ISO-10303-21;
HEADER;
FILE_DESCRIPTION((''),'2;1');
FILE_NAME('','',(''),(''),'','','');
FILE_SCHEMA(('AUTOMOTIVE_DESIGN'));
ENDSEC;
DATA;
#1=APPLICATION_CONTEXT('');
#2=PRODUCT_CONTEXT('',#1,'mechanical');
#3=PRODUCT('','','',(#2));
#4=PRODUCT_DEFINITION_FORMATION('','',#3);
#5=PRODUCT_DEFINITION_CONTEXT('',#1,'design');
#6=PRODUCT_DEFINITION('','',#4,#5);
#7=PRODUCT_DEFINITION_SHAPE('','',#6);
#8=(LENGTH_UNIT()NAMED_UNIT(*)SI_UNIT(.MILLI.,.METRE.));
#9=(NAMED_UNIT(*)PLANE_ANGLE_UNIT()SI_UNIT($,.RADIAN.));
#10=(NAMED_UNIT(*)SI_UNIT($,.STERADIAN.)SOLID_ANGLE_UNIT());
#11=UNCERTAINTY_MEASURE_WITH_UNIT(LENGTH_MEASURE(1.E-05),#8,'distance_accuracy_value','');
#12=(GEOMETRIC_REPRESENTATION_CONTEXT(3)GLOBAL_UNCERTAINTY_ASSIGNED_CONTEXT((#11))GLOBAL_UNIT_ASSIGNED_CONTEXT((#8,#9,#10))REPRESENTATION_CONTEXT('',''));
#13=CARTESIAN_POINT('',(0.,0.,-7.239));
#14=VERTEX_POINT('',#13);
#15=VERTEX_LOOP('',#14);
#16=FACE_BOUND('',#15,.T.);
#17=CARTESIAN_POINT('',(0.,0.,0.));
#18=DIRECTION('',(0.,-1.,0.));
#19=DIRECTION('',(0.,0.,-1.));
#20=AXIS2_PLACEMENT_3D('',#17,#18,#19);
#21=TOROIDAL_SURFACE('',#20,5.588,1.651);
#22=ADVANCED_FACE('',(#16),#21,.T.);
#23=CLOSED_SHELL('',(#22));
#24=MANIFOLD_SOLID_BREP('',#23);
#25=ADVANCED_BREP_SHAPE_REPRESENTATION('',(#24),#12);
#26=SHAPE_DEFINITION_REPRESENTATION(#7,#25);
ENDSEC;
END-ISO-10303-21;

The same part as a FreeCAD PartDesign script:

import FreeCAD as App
import Part
import Sketcher

V = App.Vector
Q = App.Units.Quantity

doc = App.newDocument("Part")
body = doc.addObject("PartDesign::Body", "Body")

sketch1 = body.newObject("Sketcher::SketchObject", "Sketch")
sketch1.AttachmentSupport = (doc.getObject("XY_Plane"), [""])
sketch1.MapMode = "FlatFace"
sketch1.addGeometry(Part.Circle(V(-5.588, 0, 0), V(0, 0, 1), 1.651), False)
sketch1.addConstraint([
    Sketcher.Constraint("PointOnObject", 0, 3, -1),
    Sketcher.Constraint("Diameter", 0, Q("0.13 in")),
    Sketcher.Constraint("DistanceX", 0, 3, -1, 1, Q("0.22 in")),
])

sketch2 = body.newObject("Sketcher::SketchObject", "Sketch001")
sketch2.AttachmentSupport = (doc.getObject("XZ_Plane"), [""])
sketch2.MapMode = "FlatFace"
sketch2.addGeometry(Part.Circle(V(0, 0, 0), V(0, 0, 1), 3.937), False)
sketch2.addConstraint([
    Sketcher.Constraint("Coincident", 0, 3, -1, 1),
    Sketcher.Constraint("Diameter", 0, Q("0.31 in")),
])
doc.recompute()

additivepipe = body.newObject("PartDesign::AdditivePipe", "AdditivePipe")
additivepipe.Profile = sketch1
additivepipe.Spine = (sketch2, ["Edge1"])

doc.recompute()
